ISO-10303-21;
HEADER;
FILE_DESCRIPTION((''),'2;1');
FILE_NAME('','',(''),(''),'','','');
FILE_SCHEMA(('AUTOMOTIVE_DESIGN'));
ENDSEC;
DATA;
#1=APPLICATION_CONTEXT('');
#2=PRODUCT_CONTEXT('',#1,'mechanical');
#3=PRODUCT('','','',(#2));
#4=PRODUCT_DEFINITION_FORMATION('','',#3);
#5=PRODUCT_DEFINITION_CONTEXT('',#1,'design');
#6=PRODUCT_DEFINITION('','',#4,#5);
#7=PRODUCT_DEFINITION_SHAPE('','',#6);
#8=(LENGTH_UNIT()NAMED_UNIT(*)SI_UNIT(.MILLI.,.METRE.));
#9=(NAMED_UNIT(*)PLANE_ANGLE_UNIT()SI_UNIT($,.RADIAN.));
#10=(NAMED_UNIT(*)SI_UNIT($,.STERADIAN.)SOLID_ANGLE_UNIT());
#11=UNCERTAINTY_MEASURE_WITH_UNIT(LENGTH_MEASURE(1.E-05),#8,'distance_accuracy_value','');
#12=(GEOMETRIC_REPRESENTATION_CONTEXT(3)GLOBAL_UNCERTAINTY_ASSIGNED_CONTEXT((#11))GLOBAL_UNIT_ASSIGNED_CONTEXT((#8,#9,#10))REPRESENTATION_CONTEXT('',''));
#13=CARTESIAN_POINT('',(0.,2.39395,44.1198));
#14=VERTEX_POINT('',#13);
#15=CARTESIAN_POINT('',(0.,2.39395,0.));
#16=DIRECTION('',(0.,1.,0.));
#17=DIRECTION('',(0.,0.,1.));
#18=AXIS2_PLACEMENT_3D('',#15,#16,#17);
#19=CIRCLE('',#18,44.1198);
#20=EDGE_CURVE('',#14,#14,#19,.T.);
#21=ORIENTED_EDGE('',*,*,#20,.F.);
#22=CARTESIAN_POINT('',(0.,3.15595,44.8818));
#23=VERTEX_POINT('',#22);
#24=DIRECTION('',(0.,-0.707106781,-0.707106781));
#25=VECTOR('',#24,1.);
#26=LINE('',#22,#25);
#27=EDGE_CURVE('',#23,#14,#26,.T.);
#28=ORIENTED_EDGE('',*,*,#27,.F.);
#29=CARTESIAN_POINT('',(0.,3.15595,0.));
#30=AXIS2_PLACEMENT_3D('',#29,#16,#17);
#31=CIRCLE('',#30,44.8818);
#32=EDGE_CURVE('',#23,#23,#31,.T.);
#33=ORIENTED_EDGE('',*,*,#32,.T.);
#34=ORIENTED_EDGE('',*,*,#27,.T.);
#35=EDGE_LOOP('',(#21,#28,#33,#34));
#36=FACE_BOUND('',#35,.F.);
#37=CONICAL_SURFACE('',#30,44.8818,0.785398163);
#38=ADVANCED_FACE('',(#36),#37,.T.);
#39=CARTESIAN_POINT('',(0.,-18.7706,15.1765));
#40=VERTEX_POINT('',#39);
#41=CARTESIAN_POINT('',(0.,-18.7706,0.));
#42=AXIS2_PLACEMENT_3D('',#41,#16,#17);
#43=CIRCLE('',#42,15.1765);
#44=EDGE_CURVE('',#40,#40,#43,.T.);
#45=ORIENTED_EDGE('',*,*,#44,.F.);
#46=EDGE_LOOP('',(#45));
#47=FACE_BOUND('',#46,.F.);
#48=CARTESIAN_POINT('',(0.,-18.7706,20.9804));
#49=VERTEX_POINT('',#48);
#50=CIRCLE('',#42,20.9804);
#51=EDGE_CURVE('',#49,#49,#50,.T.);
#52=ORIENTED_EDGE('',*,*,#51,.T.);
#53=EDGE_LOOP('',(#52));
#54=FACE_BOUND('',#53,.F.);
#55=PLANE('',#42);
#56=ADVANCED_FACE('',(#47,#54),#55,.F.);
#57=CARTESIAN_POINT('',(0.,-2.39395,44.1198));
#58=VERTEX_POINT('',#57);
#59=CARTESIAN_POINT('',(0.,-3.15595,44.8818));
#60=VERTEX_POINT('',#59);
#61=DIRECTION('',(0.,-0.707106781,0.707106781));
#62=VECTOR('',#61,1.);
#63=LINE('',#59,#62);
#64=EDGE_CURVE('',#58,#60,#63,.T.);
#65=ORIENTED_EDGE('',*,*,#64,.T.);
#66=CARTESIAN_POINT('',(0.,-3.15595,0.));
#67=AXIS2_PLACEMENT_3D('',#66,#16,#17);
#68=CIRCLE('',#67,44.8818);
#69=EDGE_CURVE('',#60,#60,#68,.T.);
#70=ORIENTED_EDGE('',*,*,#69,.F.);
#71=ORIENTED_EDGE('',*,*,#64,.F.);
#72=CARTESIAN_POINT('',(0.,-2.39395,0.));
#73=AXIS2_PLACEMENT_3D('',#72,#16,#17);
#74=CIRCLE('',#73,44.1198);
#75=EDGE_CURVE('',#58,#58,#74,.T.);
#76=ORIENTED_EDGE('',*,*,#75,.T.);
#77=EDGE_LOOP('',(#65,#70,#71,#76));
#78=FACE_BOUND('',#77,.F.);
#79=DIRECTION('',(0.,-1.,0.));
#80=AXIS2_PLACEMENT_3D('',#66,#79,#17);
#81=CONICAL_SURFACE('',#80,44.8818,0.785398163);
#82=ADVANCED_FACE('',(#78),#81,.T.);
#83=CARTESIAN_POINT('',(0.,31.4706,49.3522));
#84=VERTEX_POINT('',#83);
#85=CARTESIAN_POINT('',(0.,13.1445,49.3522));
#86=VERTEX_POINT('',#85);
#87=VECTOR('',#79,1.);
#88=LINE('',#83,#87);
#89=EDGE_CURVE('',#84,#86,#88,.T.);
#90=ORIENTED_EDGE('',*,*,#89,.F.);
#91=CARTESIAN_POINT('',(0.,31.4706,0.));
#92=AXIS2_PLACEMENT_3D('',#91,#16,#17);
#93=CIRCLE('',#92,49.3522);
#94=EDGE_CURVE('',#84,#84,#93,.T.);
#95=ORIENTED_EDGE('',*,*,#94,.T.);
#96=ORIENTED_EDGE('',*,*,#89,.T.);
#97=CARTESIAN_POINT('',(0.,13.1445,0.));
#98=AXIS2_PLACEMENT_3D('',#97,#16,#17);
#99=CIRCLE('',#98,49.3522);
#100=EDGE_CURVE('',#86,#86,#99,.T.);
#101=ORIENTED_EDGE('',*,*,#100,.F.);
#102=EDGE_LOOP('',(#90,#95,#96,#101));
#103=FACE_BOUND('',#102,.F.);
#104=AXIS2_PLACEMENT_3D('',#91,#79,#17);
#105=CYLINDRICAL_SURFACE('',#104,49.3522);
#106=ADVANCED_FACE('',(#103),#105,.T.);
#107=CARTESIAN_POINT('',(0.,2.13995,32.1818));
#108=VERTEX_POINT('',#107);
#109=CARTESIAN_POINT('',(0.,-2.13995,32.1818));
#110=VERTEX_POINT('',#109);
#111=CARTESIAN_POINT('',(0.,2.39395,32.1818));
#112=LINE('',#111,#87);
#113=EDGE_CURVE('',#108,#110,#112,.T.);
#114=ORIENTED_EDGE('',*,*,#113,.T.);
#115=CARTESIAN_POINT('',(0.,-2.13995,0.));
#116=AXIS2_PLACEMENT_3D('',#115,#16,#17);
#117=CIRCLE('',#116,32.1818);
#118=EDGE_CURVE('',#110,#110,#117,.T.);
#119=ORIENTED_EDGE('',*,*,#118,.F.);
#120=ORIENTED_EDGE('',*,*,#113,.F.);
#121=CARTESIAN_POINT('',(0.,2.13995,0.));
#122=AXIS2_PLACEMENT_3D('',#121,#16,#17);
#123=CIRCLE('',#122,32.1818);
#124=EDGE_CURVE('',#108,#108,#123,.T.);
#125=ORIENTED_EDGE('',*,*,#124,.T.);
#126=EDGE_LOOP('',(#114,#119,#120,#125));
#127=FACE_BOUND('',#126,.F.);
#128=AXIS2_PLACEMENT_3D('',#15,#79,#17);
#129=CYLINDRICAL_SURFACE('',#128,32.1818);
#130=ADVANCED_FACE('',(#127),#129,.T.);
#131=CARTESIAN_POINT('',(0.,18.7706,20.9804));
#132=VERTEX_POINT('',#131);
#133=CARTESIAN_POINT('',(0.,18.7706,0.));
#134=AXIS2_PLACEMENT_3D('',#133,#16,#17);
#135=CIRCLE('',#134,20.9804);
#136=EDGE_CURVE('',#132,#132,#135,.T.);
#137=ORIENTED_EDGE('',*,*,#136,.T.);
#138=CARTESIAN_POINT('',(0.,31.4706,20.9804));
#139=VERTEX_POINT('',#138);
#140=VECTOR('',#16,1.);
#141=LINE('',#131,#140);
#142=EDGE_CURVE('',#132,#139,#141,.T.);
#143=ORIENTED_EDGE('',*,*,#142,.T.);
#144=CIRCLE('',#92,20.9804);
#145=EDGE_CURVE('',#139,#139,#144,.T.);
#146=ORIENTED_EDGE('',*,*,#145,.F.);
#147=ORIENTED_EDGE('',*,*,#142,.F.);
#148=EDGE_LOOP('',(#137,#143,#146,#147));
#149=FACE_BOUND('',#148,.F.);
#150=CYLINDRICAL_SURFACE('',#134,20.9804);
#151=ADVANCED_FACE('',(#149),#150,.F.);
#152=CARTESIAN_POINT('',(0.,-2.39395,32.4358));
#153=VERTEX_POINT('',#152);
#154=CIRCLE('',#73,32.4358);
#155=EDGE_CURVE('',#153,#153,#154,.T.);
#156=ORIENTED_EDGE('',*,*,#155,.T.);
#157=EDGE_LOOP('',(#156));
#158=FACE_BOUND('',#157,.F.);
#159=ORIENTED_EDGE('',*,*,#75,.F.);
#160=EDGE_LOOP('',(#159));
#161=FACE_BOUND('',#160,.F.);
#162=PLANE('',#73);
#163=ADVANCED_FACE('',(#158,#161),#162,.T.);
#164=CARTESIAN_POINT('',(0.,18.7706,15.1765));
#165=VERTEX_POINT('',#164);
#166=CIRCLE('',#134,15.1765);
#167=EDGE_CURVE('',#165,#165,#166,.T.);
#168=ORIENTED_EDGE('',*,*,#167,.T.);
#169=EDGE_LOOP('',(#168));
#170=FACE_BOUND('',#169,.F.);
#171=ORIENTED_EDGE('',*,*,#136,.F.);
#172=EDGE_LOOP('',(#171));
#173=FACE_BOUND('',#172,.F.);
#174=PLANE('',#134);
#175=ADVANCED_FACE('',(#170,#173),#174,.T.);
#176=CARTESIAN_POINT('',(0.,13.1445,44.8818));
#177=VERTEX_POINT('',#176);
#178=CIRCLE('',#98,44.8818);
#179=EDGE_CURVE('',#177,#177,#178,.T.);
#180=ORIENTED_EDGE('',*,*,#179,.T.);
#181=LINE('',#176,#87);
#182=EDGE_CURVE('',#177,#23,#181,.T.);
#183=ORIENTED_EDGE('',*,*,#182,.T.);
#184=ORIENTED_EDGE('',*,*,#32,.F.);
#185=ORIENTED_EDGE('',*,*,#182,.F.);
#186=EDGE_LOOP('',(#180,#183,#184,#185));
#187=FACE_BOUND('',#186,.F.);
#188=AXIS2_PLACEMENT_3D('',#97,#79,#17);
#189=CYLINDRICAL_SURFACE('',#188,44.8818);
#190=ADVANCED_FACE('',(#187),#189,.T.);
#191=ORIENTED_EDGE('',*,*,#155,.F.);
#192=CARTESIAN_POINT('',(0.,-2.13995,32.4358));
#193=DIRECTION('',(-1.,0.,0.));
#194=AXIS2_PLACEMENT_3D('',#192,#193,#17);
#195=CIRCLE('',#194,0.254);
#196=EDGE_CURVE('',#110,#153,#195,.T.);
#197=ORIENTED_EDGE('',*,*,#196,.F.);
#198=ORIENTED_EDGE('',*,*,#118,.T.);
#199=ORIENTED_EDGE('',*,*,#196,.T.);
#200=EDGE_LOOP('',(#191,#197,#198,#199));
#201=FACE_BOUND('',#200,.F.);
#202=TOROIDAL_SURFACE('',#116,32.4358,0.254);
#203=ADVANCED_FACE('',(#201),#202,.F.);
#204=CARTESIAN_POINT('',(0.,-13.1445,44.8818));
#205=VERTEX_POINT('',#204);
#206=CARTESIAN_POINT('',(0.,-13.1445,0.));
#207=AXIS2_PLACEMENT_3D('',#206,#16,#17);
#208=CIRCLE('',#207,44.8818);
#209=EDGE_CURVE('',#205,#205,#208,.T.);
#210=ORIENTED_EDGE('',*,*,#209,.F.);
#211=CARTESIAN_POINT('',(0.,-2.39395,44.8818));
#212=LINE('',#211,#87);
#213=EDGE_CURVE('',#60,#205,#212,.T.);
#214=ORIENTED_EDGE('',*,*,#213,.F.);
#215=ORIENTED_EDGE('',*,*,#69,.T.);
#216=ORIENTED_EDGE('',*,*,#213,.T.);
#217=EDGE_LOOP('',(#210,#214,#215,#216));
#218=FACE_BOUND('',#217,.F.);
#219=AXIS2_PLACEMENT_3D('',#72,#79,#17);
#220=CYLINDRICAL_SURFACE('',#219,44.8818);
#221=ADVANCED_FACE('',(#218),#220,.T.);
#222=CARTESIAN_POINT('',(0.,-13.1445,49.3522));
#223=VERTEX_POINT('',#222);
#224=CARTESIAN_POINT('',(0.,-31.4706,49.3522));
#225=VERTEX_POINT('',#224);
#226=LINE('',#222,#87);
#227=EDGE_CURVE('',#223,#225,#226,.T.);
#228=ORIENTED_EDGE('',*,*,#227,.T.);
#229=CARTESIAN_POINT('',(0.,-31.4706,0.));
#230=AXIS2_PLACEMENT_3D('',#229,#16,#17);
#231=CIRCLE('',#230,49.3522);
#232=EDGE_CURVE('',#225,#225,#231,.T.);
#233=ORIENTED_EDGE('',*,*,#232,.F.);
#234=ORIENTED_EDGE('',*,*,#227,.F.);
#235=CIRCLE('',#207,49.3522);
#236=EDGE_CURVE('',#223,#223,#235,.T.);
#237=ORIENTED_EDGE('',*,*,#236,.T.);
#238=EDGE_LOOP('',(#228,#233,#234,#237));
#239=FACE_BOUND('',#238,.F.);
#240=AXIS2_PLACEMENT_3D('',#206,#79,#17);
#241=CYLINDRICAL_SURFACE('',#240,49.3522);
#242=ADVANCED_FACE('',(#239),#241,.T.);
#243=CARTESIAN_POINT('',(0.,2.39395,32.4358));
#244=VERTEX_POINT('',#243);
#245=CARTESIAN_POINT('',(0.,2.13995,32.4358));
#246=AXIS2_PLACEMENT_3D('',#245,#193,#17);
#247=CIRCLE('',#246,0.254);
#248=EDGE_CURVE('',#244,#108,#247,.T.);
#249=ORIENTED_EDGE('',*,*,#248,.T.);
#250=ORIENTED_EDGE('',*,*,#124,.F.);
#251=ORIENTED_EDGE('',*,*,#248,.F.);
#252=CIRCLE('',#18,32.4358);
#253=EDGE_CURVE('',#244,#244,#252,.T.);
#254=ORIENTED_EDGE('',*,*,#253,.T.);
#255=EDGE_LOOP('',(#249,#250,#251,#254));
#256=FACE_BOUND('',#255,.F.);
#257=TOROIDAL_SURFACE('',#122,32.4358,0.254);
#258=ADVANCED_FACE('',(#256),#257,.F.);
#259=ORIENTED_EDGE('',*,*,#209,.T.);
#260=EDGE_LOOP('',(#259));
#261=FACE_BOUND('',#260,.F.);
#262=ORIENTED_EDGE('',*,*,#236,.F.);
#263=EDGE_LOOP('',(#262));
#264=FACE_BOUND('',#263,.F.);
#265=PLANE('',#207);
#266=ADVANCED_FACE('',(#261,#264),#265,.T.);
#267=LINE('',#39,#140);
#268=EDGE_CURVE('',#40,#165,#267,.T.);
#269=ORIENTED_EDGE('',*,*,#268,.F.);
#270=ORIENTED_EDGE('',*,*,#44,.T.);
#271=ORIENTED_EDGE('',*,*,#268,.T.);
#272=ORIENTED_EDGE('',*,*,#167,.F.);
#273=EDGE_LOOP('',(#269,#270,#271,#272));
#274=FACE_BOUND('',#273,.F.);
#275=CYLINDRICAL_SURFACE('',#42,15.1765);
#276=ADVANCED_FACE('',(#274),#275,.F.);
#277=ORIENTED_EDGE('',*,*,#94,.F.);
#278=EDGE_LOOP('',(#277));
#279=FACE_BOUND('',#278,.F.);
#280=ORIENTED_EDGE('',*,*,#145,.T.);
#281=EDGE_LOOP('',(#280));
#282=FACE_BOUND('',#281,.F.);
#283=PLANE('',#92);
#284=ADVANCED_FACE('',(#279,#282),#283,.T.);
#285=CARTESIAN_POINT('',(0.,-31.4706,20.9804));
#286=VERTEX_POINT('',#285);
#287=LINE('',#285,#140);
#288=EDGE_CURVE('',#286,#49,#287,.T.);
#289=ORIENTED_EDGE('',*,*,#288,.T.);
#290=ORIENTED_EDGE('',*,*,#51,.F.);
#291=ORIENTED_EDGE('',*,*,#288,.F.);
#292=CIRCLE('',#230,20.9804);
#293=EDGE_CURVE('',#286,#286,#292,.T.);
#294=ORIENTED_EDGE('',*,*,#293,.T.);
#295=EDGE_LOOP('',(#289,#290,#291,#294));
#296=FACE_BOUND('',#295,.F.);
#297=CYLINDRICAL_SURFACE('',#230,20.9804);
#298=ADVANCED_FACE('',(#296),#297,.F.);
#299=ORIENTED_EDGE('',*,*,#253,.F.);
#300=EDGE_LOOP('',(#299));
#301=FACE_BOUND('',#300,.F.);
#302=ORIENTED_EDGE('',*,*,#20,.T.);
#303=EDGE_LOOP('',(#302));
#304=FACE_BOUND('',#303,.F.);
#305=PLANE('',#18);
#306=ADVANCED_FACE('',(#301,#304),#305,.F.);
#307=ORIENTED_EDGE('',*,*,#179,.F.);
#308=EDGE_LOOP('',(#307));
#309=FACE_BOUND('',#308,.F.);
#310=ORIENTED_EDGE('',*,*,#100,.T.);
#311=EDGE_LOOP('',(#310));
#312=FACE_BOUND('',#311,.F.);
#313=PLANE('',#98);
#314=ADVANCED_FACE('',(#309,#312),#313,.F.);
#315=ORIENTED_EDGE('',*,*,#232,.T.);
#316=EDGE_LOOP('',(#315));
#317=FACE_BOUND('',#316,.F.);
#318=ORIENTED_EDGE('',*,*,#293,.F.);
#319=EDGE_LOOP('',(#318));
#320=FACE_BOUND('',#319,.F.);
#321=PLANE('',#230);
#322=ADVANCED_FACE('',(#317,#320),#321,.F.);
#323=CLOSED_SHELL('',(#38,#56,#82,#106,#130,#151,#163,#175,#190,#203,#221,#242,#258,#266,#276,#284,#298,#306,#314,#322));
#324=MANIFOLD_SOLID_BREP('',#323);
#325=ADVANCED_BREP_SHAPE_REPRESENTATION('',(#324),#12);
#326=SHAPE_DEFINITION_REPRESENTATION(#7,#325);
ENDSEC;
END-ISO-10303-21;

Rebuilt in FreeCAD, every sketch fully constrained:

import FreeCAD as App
import Part
import Sketcher
from FreeCAD import Vector
Q = App.Units.Quantity


def edges_at(feature, points):
    """Names of the edges that pass closest to the given points."""
    edges = feature.Shape.Edges
    near = lambda p: min(range(len(edges)), key=lambda i: edges[i].distToShape(Part.Vertex(*p))[0])
    return sorted({f"Edge{near(p) + 1}" for p in points})


def add_polygon(sketch, points):
    """Adds a closed chain of lines whose ends are joined by coincident constraints."""
    first, n = sketch.GeometryCount, len(points)
    for a, b in zip(points, points[1:] + points[:1]):
        sketch.addGeometry(Part.LineSegment(App.Vector(*a, 0), App.Vector(*b, 0)), False)
    for i in range(n):
        sketch.addConstraint(Sketcher.Constraint("Coincident", first + i, 2, first + (i + 1) % n, 1))

doc = App.newDocument("Part")
body = doc.addObject("PartDesign::Body", "Body")

sketch1 = body.newObject("Sketcher::SketchObject", "Sketch")
sketch1.AttachmentSupport = (doc.getObject("YZ_Plane"), [""])
sketch1.MapMode = "FlatFace"
add_polygon(sketch1, [(-18.8, 15.2), (18.8, 15.2), (18.8, 21), (31.5, 21), (31.5, 49.4), (13.1, 49.4), (13.1, 44.9), (2.4, 44.9), (2.4, 32.2), (-2.4, 32.2), (-2.4, 44.9), (-13.1, 44.9), (-13.1, 49.4), (-31.5, 49.4), (-31.5, 21), (-18.8, 21)])
sketch1.addConstraint([
    Sketcher.Constraint("Horizontal", 0),
    Sketcher.Constraint("Vertical", 1),
    Sketcher.Constraint("Horizontal", 2),
    Sketcher.Constraint("Vertical", 3),
    Sketcher.Constraint("Horizontal", 4),
    Sketcher.Constraint("Vertical", 5),
    Sketcher.Constraint("Horizontal", 6),
    Sketcher.Constraint("Vertical", 7),
    Sketcher.Constraint("Horizontal", 8),
    Sketcher.Constraint("Vertical", 9),
    Sketcher.Constraint("Horizontal", 10),
    Sketcher.Constraint("Vertical", 11),
    Sketcher.Constraint("Horizontal", 12),
    Sketcher.Constraint("Vertical", 13),
    Sketcher.Constraint("Horizontal", 14),
    Sketcher.Constraint("Vertical", 15),
    Sketcher.Constraint("Symmetric", 6, 2, 9, 2, -2),
    Sketcher.Constraint("Symmetric", 4, 2, 11, 2, -2),
    Sketcher.Constraint("Symmetric", 2, 2, 13, 2, -2),
    Sketcher.Constraint("Equal", 2, 14),
    Sketcher.Constraint("Equal", 14, 7),
    Sketcher.Constraint("DistanceX", 2, 1, 2, 2, Q("0.5 in")),
    Sketcher.Constraint("DistanceX", 0, 1, 0, 2, Q("1.478 in")),
    Sketcher.Constraint("DistanceY", 3, 1, 3, 2, Q("1.117 in")),
    Sketcher.Constraint("DistanceY", 5, 2, 5, 1, Q("0.176 in")),
    Sketcher.Constraint("DistanceX", 4, 2, 4, 1, Q("0.7215 in")),
    Sketcher.Constraint("DistanceX", 8, 2, 8, 1, Q("0.1885 in")),
    Sketcher.Constraint("DistanceY", 1, 1, 1, 2, Q("0.2285 in")),
    Sketcher.Constraint("DistanceY", -1, 1, 1, 2, Q("0.826 in")),
])
revolution = body.newObject("PartDesign::Revolution", "Revolution")
revolution.Profile = sketch1
revolution.ReferenceAxis = (sketch1, ["H_Axis"])
revolution.Angle = 360
doc.recompute()

chamfer = body.newObject("PartDesign::Chamfer", "Chamfer")
chamfer.Base = (revolution, edges_at(revolution, [(0, 2.394, -44.882), (0, -2.394, -44.882)]))
chamfer.Size = Q("0.03 in")
doc.recompute()

fillet = body.newObject("PartDesign::Fillet", "Fillet")
fillet.Base = (chamfer, edges_at(chamfer, [(0, 2.394, -32.182), (0, -2.394, -32.182)]))
fillet.Radius = Q("0.01 in")

doc.recompute()
